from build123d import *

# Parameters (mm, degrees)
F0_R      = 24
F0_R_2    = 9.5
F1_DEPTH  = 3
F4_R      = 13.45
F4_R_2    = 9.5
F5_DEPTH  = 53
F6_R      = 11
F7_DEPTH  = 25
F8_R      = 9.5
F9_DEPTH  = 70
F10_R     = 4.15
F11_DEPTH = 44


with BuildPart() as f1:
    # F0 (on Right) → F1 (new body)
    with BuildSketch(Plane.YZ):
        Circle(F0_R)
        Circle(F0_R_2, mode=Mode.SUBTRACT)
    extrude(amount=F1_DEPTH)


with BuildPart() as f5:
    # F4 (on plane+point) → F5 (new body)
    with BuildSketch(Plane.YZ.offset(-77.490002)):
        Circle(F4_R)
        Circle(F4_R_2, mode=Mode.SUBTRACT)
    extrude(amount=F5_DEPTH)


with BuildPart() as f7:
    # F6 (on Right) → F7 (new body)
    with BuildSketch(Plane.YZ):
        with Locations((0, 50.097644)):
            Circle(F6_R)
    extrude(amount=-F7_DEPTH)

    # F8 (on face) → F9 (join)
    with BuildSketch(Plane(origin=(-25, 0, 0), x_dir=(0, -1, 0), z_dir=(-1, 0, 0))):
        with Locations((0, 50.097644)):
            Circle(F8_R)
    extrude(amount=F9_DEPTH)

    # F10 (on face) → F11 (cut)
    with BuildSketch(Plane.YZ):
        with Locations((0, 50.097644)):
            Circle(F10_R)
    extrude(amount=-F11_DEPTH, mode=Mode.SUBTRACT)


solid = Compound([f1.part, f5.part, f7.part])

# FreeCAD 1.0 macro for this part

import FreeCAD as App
import Part
import Sketcher
Q = App.Units.Quantity

doc = App.newDocument("Part")
body = doc.addObject("PartDesign::Body", "Body")

# Sketch on YZ plane
sketch1 = body.newObject("Sketcher::SketchObject", "Sketch")
sketch1.AttachmentSupport = (doc.getObject("YZ_Plane"), [""])
sketch1.MapMode = "FlatFace"
sketch1.addGeometry([
    Part.Circle(App.Vector(0, 0, 0), App.Vector(0, 0, 1), 24),
    Part.Circle(App.Vector(0, 0, 0), App.Vector(0, 0, 1), 10),
], False)
sketch1.addConstraint([
    Sketcher.Constraint("Coincident", 0, 3, -1, 1),
    Sketcher.Constraint("Coincident", 1, 3, -1, 1),
    Sketcher.Constraint("Diameter", 0, Q("48 mm")),
    Sketcher.Constraint("Diameter", 1, Q("19 mm")),
])
pad1 = body.newObject("PartDesign::Pad", "Pad")
pad1.Profile = sketch1
pad1.Length = 3
body2 = doc.addObject("PartDesign::Body", "Body001")

# Sketch on YZ plane
sketch2 = body2.newObject("Sketcher::SketchObject", "Sketch001")
sketch2.AttachmentSupport = (doc.getObject("YZ_Plane001"), [""])
sketch2.MapMode = "FlatFace"
sketch2.AttachmentOffset = App.Placement(App.Vector(0, 0, -77.490002), App.Rotation())
sketch2.addGeometry([
    Part.Circle(App.Vector(0, 0, 0), App.Vector(0, 0, 1), 13),
    Part.Circle(App.Vector(0, 0, 0), App.Vector(0, 0, 1), 10),
], False)
sketch2.addConstraint([
    Sketcher.Constraint("Coincident", 0, 3, -1, 1),
    Sketcher.Constraint("Coincident", 1, 3, -1, 1),
    Sketcher.Constraint("Diameter", 1, Q("19 mm")),
    Sketcher.Constraint("Diameter", 0, Q("26.9 mm")),
])
pad2 = body2.newObject("PartDesign::Pad", "Pad001")
pad2.Profile = sketch2
pad2.Length = 53
body3 = doc.addObject("PartDesign::Body", "Body002")

# Sketch on YZ plane
sketch3 = body3.newObject("Sketcher::SketchObject", "Sketch002")
sketch3.AttachmentSupport = (doc.getObject("YZ_Plane002"), [""])
sketch3.MapMode = "FlatFace"
sketch3.addGeometry(Part.Circle(App.Vector(0, 50, 0), App.Vector(0, 0, 1), 11), False)
sketch3.addConstraint([
    Sketcher.Constraint("PointOnObject", 0, 3, -2),
    Sketcher.Constraint("Diameter", 0, Q("22 mm")),
    Sketcher.Constraint("DistanceY", -1, 1, 0, 3, Q("50.097644 mm")),
])
pad3 = body3.newObject("PartDesign::Pad", "Pad002")
pad3.Profile = sketch3
pad3.Length = 25
pad3.Reversed = True

# Sketch on YZ plane
sketch4 = body3.newObject("Sketcher::SketchObject", "Sketch003")
sketch4.AttachmentSupport = (doc.getObject("YZ_Plane002"), [""])
sketch4.MapMode = "FlatFace"
sketch4.AttachmentOffset = App.Placement(App.Vector(0, 0, -25), App.Rotation())
sketch4.addGeometry(Part.Circle(App.Vector(0, 50, 0), App.Vector(0, 0, 1), 10), False)
sketch4.addConstraint([
    Sketcher.Constraint("PointOnObject", 0, 3, -2),
    Sketcher.Constraint("Diameter", 0, Q("19 mm")),
    Sketcher.Constraint("DistanceY", -1, 1, 0, 3, Q("50.097644 mm")),
])
pad4 = body3.newObject("PartDesign::Pad", "Pad003")
pad4.Profile = sketch4
pad4.Length = 70
pad4.Reversed = True

# Sketch on YZ plane
sketch5 = body3.newObject("Sketcher::SketchObject", "Sketch004")
sketch5.AttachmentSupport = (doc.getObject("YZ_Plane002"), [""])
sketch5.MapMode = "FlatFace"
sketch5.addGeometry(Part.Circle(App.Vector(0, 50.1, 0), App.Vector(0, 0, 1), 4.2), False)
sketch5.addConstraint([
    Sketcher.Constraint("PointOnObject", 0, 3, -2),
    Sketcher.Constraint("Diameter", 0, Q("8.3 mm")),
    Sketcher.Constraint("DistanceY", -1, 1, 0, 3, Q("50.097644 mm")),
])
pocket1 = body3.newObject("PartDesign::Pocket", "Pocket")
pocket1.Profile = sketch5
pocket1.Length = 44

doc.recompute()
